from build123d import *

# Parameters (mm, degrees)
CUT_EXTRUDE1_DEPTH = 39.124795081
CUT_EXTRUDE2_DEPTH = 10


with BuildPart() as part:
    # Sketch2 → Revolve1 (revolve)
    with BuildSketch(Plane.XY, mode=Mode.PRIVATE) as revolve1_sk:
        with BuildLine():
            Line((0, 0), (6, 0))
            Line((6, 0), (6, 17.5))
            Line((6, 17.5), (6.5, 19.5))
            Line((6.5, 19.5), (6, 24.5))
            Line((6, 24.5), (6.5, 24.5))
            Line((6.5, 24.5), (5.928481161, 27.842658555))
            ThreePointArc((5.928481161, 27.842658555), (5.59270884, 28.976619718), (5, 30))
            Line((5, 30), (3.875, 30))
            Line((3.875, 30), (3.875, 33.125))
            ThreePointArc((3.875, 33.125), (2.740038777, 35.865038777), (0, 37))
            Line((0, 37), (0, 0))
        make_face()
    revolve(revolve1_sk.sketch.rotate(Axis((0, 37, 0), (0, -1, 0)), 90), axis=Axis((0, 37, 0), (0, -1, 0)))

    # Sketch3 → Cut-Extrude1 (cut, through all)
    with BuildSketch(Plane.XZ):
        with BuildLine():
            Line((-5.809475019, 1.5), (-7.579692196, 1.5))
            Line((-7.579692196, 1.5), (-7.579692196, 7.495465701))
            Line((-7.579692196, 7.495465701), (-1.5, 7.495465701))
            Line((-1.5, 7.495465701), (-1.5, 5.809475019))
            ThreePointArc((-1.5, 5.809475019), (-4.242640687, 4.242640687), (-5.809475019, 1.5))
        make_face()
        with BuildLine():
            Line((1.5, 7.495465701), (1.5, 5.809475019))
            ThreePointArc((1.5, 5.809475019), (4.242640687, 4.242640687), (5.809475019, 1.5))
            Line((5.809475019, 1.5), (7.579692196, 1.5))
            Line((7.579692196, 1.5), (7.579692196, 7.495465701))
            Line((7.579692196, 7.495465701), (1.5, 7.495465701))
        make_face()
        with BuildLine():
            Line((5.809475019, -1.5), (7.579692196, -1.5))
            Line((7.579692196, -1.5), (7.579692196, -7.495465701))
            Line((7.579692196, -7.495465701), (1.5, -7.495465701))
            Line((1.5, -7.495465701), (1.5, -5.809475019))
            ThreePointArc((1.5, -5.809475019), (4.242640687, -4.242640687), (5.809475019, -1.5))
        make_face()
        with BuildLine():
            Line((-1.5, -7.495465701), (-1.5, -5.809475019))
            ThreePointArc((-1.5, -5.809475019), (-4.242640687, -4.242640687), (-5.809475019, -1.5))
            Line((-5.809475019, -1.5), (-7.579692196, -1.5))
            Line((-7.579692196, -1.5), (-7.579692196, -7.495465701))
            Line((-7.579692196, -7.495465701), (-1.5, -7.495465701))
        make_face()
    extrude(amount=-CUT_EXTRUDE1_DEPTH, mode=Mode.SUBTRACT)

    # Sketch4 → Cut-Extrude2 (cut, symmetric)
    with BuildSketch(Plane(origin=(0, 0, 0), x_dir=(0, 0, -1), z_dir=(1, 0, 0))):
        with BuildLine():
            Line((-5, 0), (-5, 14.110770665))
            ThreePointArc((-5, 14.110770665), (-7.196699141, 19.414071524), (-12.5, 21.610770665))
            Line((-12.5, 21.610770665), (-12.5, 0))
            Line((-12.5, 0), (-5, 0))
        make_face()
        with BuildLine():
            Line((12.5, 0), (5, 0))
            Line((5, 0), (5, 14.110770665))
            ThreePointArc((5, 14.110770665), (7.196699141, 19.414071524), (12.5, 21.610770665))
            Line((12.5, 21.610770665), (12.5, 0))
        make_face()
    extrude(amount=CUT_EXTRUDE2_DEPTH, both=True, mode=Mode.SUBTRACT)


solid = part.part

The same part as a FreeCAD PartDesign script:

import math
import FreeCAD as App
import Part
import Sketcher

doc = App.newDocument("Part")
body = doc.addObject("PartDesign::Body", "Body")

# Sketch on XY plane
sketch1 = body.newObject("Sketcher::SketchObject", "Sketch")
sketch1.AttachmentSupport = (doc.getObject("XY_Plane"), [""])
sketch1.MapMode = "FlatFace"
sketch1.addGeometry([
    Part.LineSegment(App.Vector(0, 0, 0), App.Vector(6, 0, 0)),  # 0
    Part.LineSegment(App.Vector(6, 0, 0), App.Vector(6, 17.5, 0)),  # 1
    Part.LineSegment(App.Vector(6, 17.5, 0), App.Vector(6.5, 19.5, 0)),  # 2
    Part.LineSegment(App.Vector(6.5, 19.5, 0), App.Vector(6, 24.5, 0)),  # 3
    Part.LineSegment(App.Vector(6, 24.5, 0), App.Vector(6.5, 24.5, 0)),  # 4
    Part.LineSegment(App.Vector(6.5, 24.5, 0), App.Vector(5.9, 27.8, 0)),  # 5
    Part.ArcOfCircle(Part.Circle(App.Vector(1, 27, 0), App.Vector(0, 0, 1), 5), math.radians(10), math.radians(37)),  # 6
    Part.LineSegment(App.Vector(5, 30, 0), App.Vector(3.9, 30, 0)),  # 7
    Part.LineSegment(App.Vector(3.9, 30, 0), App.Vector(3.9, 33.1, 0)),  # 8
    Part.ArcOfCircle(Part.Circle(App.Vector(0, 33.1, 0), App.Vector(0, 0, 1), 3.9), math.radians(0), math.radians(90)),  # 9
    Part.LineSegment(App.Vector(0, 37, 0), App.Vector(0, 0, 0)),  # 10
], False)
sketch1.addConstraint([
    Sketcher.Constraint("Coincident", 0, 2, 1, 1),
    Sketcher.Constraint("Coincident", 1, 2, 2, 1),
    Sketcher.Constraint("Coincident", 2, 2, 3, 1),
    Sketcher.Constraint("Coincident", 3, 2, 4, 1),
    Sketcher.Constraint("Coincident", 4, 2, 5, 1),
    Sketcher.Constraint("Tangent", 5, 2, 6, 1),
    Sketcher.Constraint("Coincident", 6, 2, 7, 1),
    Sketcher.Constraint("Coincident", 7, 2, 8, 1),
    Sketcher.Constraint("Tangent", 8, 2, 9, 1),
    Sketcher.Constraint("Coincident", 9, 2, 10, 1),
    Sketcher.Constraint("Coincident", 10, 2, 0, 1),
    Sketcher.Constraint("Horizontal", 0),
    Sketcher.Constraint("Vertical", 1),
    Sketcher.Constraint("Horizontal", 4),
    Sketcher.Constraint("Horizontal", 7),
    Sketcher.Constraint("Vertical", 8),
    Sketcher.Constraint("Vertical", 10),
    Sketcher.Constraint("Coincident", 10, 2, -1, 1),
    Sketcher.Constraint("PointOnObject", 9, 3, -2),
    Sketcher.Constraint("Vertical", 1, 2, 3, 2),
    Sketcher.Constraint("Vertical", 2, 2, 4, 2),
    Sketcher.Constraint("Radius", 6, 5.0),
    Sketcher.Constraint("DistanceX", 0, 1, 0, 2, 6.0),
    Sketcher.Constraint("DistanceY", 10, 2, 10, 1, 37.0),
    Sketcher.Constraint("DistanceX", 4, 1, 4, 2, 0.5),
    Sketcher.Constraint("DistanceY", 1, 1, 1, 2, 17.5),
    Sketcher.Constraint("DistanceX", -1, 1, 6, 3, 1.0),
    Sketcher.Constraint("DistanceY", -1, 1, 6, 3, 27.0),
    Sketcher.Constraint("DistanceX", -1, 1, 6, 2, 5.0),
    Sketcher.Constraint("Radius", 9, 3.875),
    Sketcher.Constraint("DistanceY", 1, 2, 2, 2, 2.0),
    Sketcher.Constraint("DistanceY", 2, 2, 3, 2, 5.0),
])
revolution = body.newObject("PartDesign::Revolution", "Revolution")
revolution.Profile = sketch1
revolution.ReferenceAxis = (sketch1, ["V_Axis"])
revolution.Angle = 360

# Sketch on XZ plane
sketch2 = body.newObject("Sketcher::SketchObject", "Sketch001")
sketch2.AttachmentSupport = (doc.getObject("XZ_Plane"), [""])
sketch2.MapMode = "FlatFace"
sketch2.addGeometry([
    Part.LineSegment(App.Vector(-7.6, 1.5, 0), App.Vector(-5.8, 1.5, 0)),  # 0
    Part.ArcOfCircle(Part.Circle(App.Vector(0, 0, 0), App.Vector(0, 0, 1), 6), math.radians(104), math.radians(166)),  # 1
    Part.LineSegment(App.Vector(-1.5, 5.8, 0), App.Vector(-1.5, 7.5, 0)),  # 2
    Part.LineSegment(App.Vector(-1.5, 7.5, 0), App.Vector(-7.6, 7.5, 0)),  # 3
    Part.LineSegment(App.Vector(-7.6, 7.5, 0), App.Vector(-7.6, 1.5, 0)),  # 4
    Part.LineSegment(App.Vector(1.5, 7.5, 0), App.Vector(1.5, 5.8, 0)),  # 5
    Part.ArcOfCircle(Part.Circle(App.Vector(0, 0, 0), App.Vector(0, 0, 1), 6), math.radians(14), math.radians(76)),  # 6
    Part.LineSegment(App.Vector(5.8, 1.5, 0), App.Vector(7.6, 1.5, 0)),  # 7
    Part.LineSegment(App.Vector(7.6, 1.5, 0), App.Vector(7.6, 7.5, 0)),  # 8
    Part.LineSegment(App.Vector(7.6, 7.5, 0), App.Vector(1.5, 7.5, 0)),  # 9
    Part.LineSegment(App.Vector(7.6, -1.5, 0), App.Vector(5.8, -1.5, 0)),  # 10
    Part.ArcOfCircle(Part.Circle(App.Vector(0, 0, 0), App.Vector(0, 0, 1), 6), math.radians(-76), math.radians(-14)),  # 11
    Part.LineSegment(App.Vector(1.5, -5.8, 0), App.Vector(1.5, -7.5, 0)),  # 12
    Part.LineSegment(App.Vector(1.5, -7.5, 0), App.Vector(7.6, -7.5, 0)),  # 13
    Part.LineSegment(App.Vector(7.6, -7.5, 0), App.Vector(7.6, -1.5, 0)),  # 14
    Part.LineSegment(App.Vector(-1.5, -7.5, 0), App.Vector(-1.5, -5.8, 0)),  # 15
    Part.ArcOfCircle(Part.Circle(App.Vector(0, 0, 0), App.Vector(0, 0, 1), 6), math.radians(-166), math.radians(-104)),  # 16
    Part.LineSegment(App.Vector(-5.8, -1.5, 0), App.Vector(-7.6, -1.5, 0)),  # 17
    Part.LineSegment(App.Vector(-7.6, -1.5, 0), App.Vector(-7.6, -7.5, 0)),  # 18
    Part.LineSegment(App.Vector(-7.6, -7.5, 0), App.Vector(-1.5, -7.5, 0)),  # 19
], False)
sketch2.addConstraint([
    Sketcher.Constraint("Coincident", 0, 2, 1, 2),
    Sketcher.Constraint("Coincident", 1, 1, 2, 1),
    Sketcher.Constraint("Coincident", 2, 2, 3, 1),
    Sketcher.Constraint("Coincident", 3, 2, 4, 1),
    Sketcher.Constraint("Coincident", 4, 2, 0, 1),
    Sketcher.Constraint("Coincident", 5, 2, 6, 2),
    Sketcher.Constraint("Coincident", 6, 1, 7, 1),
    Sketcher.Constraint("Coincident", 7, 2, 8, 1),
    Sketcher.Constraint("Coincident", 8, 2, 9, 1),
    Sketcher.Constraint("Coincident", 9, 2, 5, 1),
    Sketcher.Constraint("Coincident", 10, 2, 11, 2),
    Sketcher.Constraint("Coincident", 11, 1, 12, 1),
    Sketcher.Constraint("Coincident", 12, 2, 13, 1),
    Sketcher.Constraint("Coincident", 13, 2, 14, 1),
    Sketcher.Constraint("Coincident", 14, 2, 10, 1),
    Sketcher.Constraint("Coincident", 15, 2, 16, 2),
    Sketcher.Constraint("Coincident", 16, 1, 17, 1),
    Sketcher.Constraint("Coincident", 17, 2, 18, 1),
    Sketcher.Constraint("Coincident", 18, 2, 19, 1),
    Sketcher.Constraint("Coincident", 19, 2, 15, 1),
    Sketcher.Constraint("Horizontal", 0),
    Sketcher.Constraint("Vertical", 2),
    Sketcher.Constraint("Horizontal", 3),
    Sketcher.Constraint("Vertical", 4),
    Sketcher.Constraint("Vertical", 5),
    Sketcher.Constraint("Horizontal", 7),
    Sketcher.Constraint("Vertical", 8),
    Sketcher.Constraint("Horizontal", 9),
    Sketcher.Constraint("Horizontal", 10),
    Sketcher.Constraint("Vertical", 12),
    Sketcher.Constraint("Horizontal", 13),
    Sketcher.Constraint("Vertical", 14),
    Sketcher.Constraint("Vertical", 15),
    Sketcher.Constraint("Horizontal", 17),
    Sketcher.Constraint("Vertical", 18),
    Sketcher.Constraint("Horizontal", 19),
    Sketcher.Constraint("Coincident", 1, 3, -1, 1),
    Sketcher.Constraint("Coincident", 6, 3, -1, 1),
    Sketcher.Constraint("Coincident", 11, 3, -1, 1),
    Sketcher.Constraint("Coincident", 16, 3, -1, 1),
    Sketcher.Constraint("Equal", 1, 6),
    Sketcher.Constraint("Equal", 6, 11),
    Sketcher.Constraint("Equal", 11, 16),
    Sketcher.Constraint("Symmetric", 2, 2, 12, 2, -1, 1),
    Sketcher.Constraint("Symmetric", 4, 2, 14, 2, -1, 1),
    Sketcher.Constraint("Symmetric", 7, 2, 17, 2, -1, 1),
    Sketcher.Constraint("Symmetric", 9, 2, 19, 2, -1, 1),
    Sketcher.Constraint("Symmetric", 4, 2, 7, 2, -2),
    Sketcher.Constraint("Symmetric", 2, 2, 9, 2, -2),
    Sketcher.Constraint("Radius", 1, 6.0),
    Sketcher.Constraint("DistanceX", 1, 1, 5, 2, 3.0),
    Sketcher.Constraint("DistanceY", 10, 2, 6, 1, 3.0),
    Sketcher.Constraint("DistanceY", 2, 1, 2, 2, 1.685991),
    Sketcher.Constraint("DistanceX", 0, 1, 0, 2, 1.770217),
])
pocket1 = body.newObject("PartDesign::Pocket", "Pocket")
pocket1.Profile = sketch2
pocket1.Type = "ThroughAll"

# Sketch on YZ plane
sketch3 = body.newObject("Sketcher::SketchObject", "Sketch002")
sketch3.AttachmentSupport = (doc.getObject("YZ_Plane"), [""])
sketch3.MapMode = "FlatFace"
sketch3.addGeometry([
    Part.LineSegment(App.Vector(0, 5, 0), App.Vector(14, 5, 0)),  # 0
    Part.ArcOfCircle(Part.Circle(App.Vector(14, 12, 0), App.Vector(0, 0, 1), 8), math.radians(-90), math.radians(0)),  # 1
    Part.LineSegment(App.Vector(22, 12, 0), App.Vector(0, 12, 0)),  # 2
    Part.LineSegment(App.Vector(0, 12, 0), App.Vector(0, 5, 0)),  # 3
    Part.LineSegment(App.Vector(0, -5, 0), App.Vector(0, -12, 0)),  # 4
    Part.LineSegment(App.Vector(0, -12, 0), App.Vector(22, -12, 0)),  # 5
    Part.ArcOfCircle(Part.Circle(App.Vector(14, -12, 0), App.Vector(0, 0, 1), 8), math.radians(0), math.radians(90)),  # 6
    Part.LineSegment(App.Vector(14, -5, 0), App.Vector(0, -5, 0)),  # 7
], False)
sketch3.addConstraint([
    Sketcher.Constraint("Tangent", 0, 2, 1, 1),
    Sketcher.Constraint("Coincident", 1, 2, 2, 1),
    Sketcher.Constraint("Coincident", 2, 2, 3, 1),
    Sketcher.Constraint("Coincident", 3, 2, 0, 1),
    Sketcher.Constraint("Coincident", 4, 2, 5, 1),
    Sketcher.Constraint("Coincident", 5, 2, 6, 1),
    Sketcher.Constraint("Tangent", 6, 2, 7, 1),
    Sketcher.Constraint("Coincident", 7, 2, 4, 1),
    Sketcher.Constraint("Horizontal", 0),
    Sketcher.Constraint("Horizontal", 2),
    Sketcher.Constraint("Vertical", 3),
    Sketcher.Constraint("Vertical", 4),
    Sketcher.Constraint("Horizontal", 5),
    Sketcher.Constraint("Horizontal", 7),
    Sketcher.Constraint("Equal", 1, 6),
    Sketcher.Constraint("Symmetric", 2, 2, 4, 2, -1, 1),
    Sketcher.Constraint("Symmetric", 1, 3, 6, 3, -1),
    Sketcher.Constraint("PointOnObject", 2, 2, -2),
    Sketcher.Constraint("Horizontal", 6, 3, 4, 2),
    Sketcher.Constraint("Radius", 1, 7.5),
    Sketcher.Constraint("DistanceY", -1, 1, 0, 2, 5.0),
    Sketcher.Constraint("DistanceX", 0, 1, 0, 2, 14.110771),
])
pocket2 = body.newObject("PartDesign::Pocket", "Pocket001")
pocket2.Profile = sketch3
pocket2.Length = 20
pocket2.Midplane = True

doc.recompute()
